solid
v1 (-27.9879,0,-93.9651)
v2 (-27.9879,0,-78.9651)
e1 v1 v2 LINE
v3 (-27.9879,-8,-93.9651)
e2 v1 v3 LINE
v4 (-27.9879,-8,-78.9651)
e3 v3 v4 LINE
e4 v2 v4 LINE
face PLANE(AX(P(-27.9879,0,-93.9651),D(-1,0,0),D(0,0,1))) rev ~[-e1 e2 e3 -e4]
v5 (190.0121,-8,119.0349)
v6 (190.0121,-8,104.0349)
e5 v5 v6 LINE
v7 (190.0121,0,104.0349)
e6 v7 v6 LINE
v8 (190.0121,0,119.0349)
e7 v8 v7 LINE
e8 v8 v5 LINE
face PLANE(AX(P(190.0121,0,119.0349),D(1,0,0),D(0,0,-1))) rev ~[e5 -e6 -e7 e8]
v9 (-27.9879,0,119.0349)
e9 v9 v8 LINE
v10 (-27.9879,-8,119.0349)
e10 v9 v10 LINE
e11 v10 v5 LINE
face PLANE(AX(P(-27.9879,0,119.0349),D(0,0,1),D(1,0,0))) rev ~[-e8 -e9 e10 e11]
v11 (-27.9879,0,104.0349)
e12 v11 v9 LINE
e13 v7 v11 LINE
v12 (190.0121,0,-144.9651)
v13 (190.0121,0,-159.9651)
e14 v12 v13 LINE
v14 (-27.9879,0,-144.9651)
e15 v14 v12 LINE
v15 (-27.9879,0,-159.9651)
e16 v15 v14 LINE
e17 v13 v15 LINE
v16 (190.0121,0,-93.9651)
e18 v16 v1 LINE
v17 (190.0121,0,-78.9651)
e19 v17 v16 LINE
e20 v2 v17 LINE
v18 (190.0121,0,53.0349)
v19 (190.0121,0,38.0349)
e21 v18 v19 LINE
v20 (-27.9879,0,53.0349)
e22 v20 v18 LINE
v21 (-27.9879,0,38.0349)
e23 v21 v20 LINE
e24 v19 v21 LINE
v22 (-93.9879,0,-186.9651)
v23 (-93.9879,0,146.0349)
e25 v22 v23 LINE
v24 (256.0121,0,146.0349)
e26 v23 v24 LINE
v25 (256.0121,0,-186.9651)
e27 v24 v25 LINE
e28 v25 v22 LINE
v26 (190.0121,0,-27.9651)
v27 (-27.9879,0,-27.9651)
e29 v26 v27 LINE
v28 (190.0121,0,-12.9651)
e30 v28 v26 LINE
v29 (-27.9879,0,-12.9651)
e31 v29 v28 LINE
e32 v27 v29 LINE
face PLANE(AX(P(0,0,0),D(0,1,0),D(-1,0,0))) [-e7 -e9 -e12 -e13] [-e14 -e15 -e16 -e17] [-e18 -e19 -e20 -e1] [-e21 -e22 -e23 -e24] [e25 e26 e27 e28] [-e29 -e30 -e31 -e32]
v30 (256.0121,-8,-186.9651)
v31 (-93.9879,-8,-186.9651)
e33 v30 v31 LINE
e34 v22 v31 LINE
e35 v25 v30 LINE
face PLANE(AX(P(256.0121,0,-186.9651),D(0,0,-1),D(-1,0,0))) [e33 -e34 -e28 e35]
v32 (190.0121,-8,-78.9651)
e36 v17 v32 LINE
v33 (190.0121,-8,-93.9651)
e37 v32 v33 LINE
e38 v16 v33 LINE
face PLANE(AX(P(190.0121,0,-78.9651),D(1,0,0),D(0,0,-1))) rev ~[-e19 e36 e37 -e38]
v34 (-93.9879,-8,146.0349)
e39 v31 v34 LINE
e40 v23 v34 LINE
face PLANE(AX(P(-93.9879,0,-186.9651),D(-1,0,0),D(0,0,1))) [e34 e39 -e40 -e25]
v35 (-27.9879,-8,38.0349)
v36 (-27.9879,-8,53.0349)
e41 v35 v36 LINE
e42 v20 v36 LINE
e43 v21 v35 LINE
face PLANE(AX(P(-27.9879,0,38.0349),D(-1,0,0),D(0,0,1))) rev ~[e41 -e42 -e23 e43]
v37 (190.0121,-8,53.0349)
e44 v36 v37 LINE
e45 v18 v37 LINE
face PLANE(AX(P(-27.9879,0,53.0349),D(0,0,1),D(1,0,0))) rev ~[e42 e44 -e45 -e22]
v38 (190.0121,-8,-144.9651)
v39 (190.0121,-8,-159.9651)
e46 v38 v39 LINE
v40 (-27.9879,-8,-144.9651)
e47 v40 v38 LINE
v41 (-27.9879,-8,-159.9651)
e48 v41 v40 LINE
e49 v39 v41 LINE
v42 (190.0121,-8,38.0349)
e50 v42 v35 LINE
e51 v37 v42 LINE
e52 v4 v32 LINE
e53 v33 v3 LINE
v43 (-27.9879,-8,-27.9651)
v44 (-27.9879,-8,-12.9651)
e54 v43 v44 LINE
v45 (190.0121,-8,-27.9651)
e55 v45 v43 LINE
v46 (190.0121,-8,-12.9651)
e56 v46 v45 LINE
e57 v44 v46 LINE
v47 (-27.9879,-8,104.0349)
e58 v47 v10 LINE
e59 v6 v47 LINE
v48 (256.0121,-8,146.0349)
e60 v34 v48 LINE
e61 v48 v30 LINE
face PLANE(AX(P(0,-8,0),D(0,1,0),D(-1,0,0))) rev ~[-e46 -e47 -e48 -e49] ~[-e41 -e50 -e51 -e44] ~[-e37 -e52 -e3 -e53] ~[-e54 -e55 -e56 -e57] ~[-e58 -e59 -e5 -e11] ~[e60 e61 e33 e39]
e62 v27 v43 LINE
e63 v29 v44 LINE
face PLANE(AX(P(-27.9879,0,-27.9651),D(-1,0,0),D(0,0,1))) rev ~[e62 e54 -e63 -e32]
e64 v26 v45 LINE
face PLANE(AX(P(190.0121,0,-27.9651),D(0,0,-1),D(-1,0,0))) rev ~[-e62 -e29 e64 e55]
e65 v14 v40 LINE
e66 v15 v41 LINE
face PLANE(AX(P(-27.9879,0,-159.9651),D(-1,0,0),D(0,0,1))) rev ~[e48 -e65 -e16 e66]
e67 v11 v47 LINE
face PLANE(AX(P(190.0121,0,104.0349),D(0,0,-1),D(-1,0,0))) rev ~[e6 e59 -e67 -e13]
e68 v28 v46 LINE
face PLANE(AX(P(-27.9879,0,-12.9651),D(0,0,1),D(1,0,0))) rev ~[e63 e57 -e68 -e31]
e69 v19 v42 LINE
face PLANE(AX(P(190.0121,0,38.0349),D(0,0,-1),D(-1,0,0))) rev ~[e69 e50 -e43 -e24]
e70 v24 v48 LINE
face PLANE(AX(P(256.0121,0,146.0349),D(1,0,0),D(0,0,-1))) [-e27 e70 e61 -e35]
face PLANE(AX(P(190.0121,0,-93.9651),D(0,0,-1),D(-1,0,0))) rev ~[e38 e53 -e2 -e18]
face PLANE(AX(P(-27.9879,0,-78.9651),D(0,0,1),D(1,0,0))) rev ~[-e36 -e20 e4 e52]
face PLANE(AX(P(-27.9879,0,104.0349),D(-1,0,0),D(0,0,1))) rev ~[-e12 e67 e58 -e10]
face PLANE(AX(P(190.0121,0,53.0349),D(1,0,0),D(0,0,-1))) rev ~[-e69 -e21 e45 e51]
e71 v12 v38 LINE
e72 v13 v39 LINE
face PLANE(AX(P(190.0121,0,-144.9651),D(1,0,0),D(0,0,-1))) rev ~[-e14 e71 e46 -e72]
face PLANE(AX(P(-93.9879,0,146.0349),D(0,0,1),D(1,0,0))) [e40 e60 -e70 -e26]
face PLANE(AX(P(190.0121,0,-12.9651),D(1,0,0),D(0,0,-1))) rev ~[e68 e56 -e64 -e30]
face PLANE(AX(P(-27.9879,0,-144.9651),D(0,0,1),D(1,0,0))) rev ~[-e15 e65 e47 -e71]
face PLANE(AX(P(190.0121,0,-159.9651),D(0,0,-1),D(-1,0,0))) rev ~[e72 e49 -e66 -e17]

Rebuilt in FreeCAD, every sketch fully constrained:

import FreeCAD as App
import Part
import Sketcher
from FreeCAD import Vector

doc = App.newDocument("Part")
body = doc.addObject("PartDesign::Body", "Body")

# Sketch on XZ plane
sketch1 = doc.addObject("Sketcher::SketchObject", "Sketch")
body.addObject(sketch1)
sketch1.AttachmentSupport = (doc.XZ_Plane, [""])
sketch1.MapMode = "FlatFace"
sketch1.addGeometry([
    Part.LineSegment(Vector(-94, -187, 0), Vector(-94, 146, 0)),  # 0
    Part.LineSegment(Vector(-94, 146, 0), Vector(256, 146, 0)),  # 1
    Part.LineSegment(Vector(256, 146, 0), Vector(256, -187, 0)),  # 2
    Part.LineSegment(Vector(256, -187, 0), Vector(-94, -187, 0)),  # 3
    Part.LineSegment(Vector(190, -145, 0), Vector(-28, -145, 0)),  # 4
    Part.LineSegment(Vector(-28, -145, 0), Vector(-28, -160, 0)),  # 5
    Part.LineSegment(Vector(-28, -160, 0), Vector(190, -160, 0)),  # 6
    Part.LineSegment(Vector(190, -160, 0), Vector(190, -145, 0)),  # 7
    Part.LineSegment(Vector(190, -79, 0), Vector(-28, -79, 0)),  # 8
    Part.LineSegment(Vector(-28, -79, 0), Vector(-28, -94, 0)),  # 9
    Part.LineSegment(Vector(-28, -94, 0), Vector(190, -94, 0)),  # 10
    Part.LineSegment(Vector(190, -94, 0), Vector(190, -79, 0)),  # 11
    Part.LineSegment(Vector(190, -13, 0), Vector(-28, -13, 0)),  # 12
    Part.LineSegment(Vector(-28, -13, 0), Vector(-28, -28, 0)),  # 13
    Part.LineSegment(Vector(-28, -28, 0), Vector(190, -28, 0)),  # 14
    Part.LineSegment(Vector(190, -28, 0), Vector(190, -13, 0)),  # 15
    Part.LineSegment(Vector(190, 53, 0), Vector(-28, 53, 0)),  # 16
    Part.LineSegment(Vector(-28, 53, 0), Vector(-28, 38, 0)),  # 17
    Part.LineSegment(Vector(-28, 38, 0), Vector(190, 38, 0)),  # 18
    Part.LineSegment(Vector(190, 38, 0), Vector(190, 53, 0)),  # 19
    Part.LineSegment(Vector(190, 119, 0), Vector(-28, 119, 0)),  # 20
    Part.LineSegment(Vector(-28, 119, 0), Vector(-28, 104, 0)),  # 21
    Part.LineSegment(Vector(-28, 104, 0), Vector(190, 104, 0)),  # 22
    Part.LineSegment(Vector(190, 104, 0), Vector(190, 119, 0)),  # 23
], False)
sketch1.addConstraint([
    Sketcher.Constraint("Coincident", 0, 2, 1, 1),
    Sketcher.Constraint("Coincident", 1, 2, 2, 1),
    Sketcher.Constraint("Coincident", 2, 2, 3, 1),
    Sketcher.Constraint("Coincident", 3, 2, 0, 1),
    Sketcher.Constraint("Coincident", 4, 2, 5, 1),
    Sketcher.Constraint("Coincident", 5, 2, 6, 1),
    Sketcher.Constraint("Coincident", 6, 2, 7, 1),
    Sketcher.Constraint("Coincident", 7, 2, 4, 1),
    Sketcher.Constraint("Coincident", 8, 2, 9, 1),
    Sketcher.Constraint("Coincident", 9, 2, 10, 1),
    Sketcher.Constraint("Coincident", 10, 2, 11, 1),
    Sketcher.Constraint("Coincident", 11, 2, 8, 1),
    Sketcher.Constraint("Coincident", 12, 2, 13, 1),
    Sketcher.Constraint("Coincident", 13, 2, 14, 1),
    Sketcher.Constraint("Coincident", 14, 2, 15, 1),
    Sketcher.Constraint("Coincident", 15, 2, 12, 1),
    Sketcher.Constraint("Coincident", 16, 2, 17, 1),
    Sketcher.Constraint("Coincident", 17, 2, 18, 1),
    Sketcher.Constraint("Coincident", 18, 2, 19, 1),
    Sketcher.Constraint("Coincident", 19, 2, 16, 1),
    Sketcher.Constraint("Coincident", 20, 2, 21, 1),
    Sketcher.Constraint("Coincident", 21, 2, 22, 1),
    Sketcher.Constraint("Coincident", 22, 2, 23, 1),
    Sketcher.Constraint("Coincident", 23, 2, 20, 1),
    Sketcher.Constraint("Vertical", 0),
    Sketcher.Constraint("Horizontal", 1),
    Sketcher.Constraint("Vertical", 2),
    Sketcher.Constraint("Horizontal", 3),
    Sketcher.Constraint("Horizontal", 4),
    Sketcher.Constraint("Vertical", 5),
    Sketcher.Constraint("Horizontal", 6),
    Sketcher.Constraint("Vertical", 7),
    Sketcher.Constraint("Horizontal", 8),
    Sketcher.Constraint("Vertical", 9),
    Sketcher.Constraint("Horizontal", 10),
    Sketcher.Constraint("Vertical", 11),
    Sketcher.Constraint("Horizontal", 12),
    Sketcher.Constraint("Vertical", 13),
    Sketcher.Constraint("Horizontal", 14),
    Sketcher.Constraint("Vertical", 15),
    Sketcher.Constraint("Horizontal", 16),
    Sketcher.Constraint("Vertical", 17),
    Sketcher.Constraint("Horizontal", 18),
    Sketcher.Constraint("Vertical", 19),
    Sketcher.Constraint("Horizontal", 20),
    Sketcher.Constraint("Vertical", 21),
    Sketcher.Constraint("Horizontal", 22),
    Sketcher.Constraint("Vertical", 23),
    Sketcher.Constraint("Vertical", 5, 2, 8, 2),
    Sketcher.Constraint("Vertical", 7, 2, 10, 2),
    Sketcher.Constraint("Vertical", 9, 2, 12, 2),
    Sketcher.Constraint("Vertical", 11, 2, 14, 2),
    Sketcher.Constraint("Vertical", 13, 2, 16, 2),
    Sketcher.Constraint("Vertical", 15, 2, 18, 2),
    Sketcher.Constraint("Vertical", 17, 2, 20, 2),
    Sketcher.Constraint("Vertical", 19, 2, 22, 2),
    Sketcher.Constraint("Equal", 7, 9),
    Sketcher.Constraint("Equal", 11, 13),
    Sketcher.Constraint("Equal", 15, 17),
    Sketcher.Constraint("Equal", 19, 21),
    Sketcher.Constraint("DistanceX", 1, 1, 1, 2, 350.0),
    Sketcher.Constraint("DistanceY", 0, 1, 0, 2, 333.0),
    Sketcher.Constraint("DistanceY", 5, 2, 5, 1, 15.0),
    Sketcher.Constraint("DistanceX", 3, 2, 4, 2, 66.0),
    Sketcher.Constraint("DistanceY", 3, 2, 5, 2, 27.0),
    Sketcher.Constraint("DistanceX", 6, 2, 2, 2, 66.0),
    Sketcher.Constraint("DistanceY", 4, 2, 8, 2, 66.0),
    Sketcher.Constraint("DistanceY", 8, 2, 12, 2, 66.0),
    Sketcher.Constraint("DistanceY", 12, 2, 16, 2, 66.0),
    Sketcher.Constraint("DistanceY", 16, 2, 20, 2, 66.0),
    Sketcher.Constraint("DistanceX", 0, 2, -1, 1, 93.988),
    Sketcher.Constraint("DistanceY", -1, 1, 0, 2, 146.035),
])
pad1 = doc.addObject("PartDesign::Pad", "Pad")
body.addObject(pad1)
pad1.Profile = sketch1
pad1.Length = 8

doc.recompute()
